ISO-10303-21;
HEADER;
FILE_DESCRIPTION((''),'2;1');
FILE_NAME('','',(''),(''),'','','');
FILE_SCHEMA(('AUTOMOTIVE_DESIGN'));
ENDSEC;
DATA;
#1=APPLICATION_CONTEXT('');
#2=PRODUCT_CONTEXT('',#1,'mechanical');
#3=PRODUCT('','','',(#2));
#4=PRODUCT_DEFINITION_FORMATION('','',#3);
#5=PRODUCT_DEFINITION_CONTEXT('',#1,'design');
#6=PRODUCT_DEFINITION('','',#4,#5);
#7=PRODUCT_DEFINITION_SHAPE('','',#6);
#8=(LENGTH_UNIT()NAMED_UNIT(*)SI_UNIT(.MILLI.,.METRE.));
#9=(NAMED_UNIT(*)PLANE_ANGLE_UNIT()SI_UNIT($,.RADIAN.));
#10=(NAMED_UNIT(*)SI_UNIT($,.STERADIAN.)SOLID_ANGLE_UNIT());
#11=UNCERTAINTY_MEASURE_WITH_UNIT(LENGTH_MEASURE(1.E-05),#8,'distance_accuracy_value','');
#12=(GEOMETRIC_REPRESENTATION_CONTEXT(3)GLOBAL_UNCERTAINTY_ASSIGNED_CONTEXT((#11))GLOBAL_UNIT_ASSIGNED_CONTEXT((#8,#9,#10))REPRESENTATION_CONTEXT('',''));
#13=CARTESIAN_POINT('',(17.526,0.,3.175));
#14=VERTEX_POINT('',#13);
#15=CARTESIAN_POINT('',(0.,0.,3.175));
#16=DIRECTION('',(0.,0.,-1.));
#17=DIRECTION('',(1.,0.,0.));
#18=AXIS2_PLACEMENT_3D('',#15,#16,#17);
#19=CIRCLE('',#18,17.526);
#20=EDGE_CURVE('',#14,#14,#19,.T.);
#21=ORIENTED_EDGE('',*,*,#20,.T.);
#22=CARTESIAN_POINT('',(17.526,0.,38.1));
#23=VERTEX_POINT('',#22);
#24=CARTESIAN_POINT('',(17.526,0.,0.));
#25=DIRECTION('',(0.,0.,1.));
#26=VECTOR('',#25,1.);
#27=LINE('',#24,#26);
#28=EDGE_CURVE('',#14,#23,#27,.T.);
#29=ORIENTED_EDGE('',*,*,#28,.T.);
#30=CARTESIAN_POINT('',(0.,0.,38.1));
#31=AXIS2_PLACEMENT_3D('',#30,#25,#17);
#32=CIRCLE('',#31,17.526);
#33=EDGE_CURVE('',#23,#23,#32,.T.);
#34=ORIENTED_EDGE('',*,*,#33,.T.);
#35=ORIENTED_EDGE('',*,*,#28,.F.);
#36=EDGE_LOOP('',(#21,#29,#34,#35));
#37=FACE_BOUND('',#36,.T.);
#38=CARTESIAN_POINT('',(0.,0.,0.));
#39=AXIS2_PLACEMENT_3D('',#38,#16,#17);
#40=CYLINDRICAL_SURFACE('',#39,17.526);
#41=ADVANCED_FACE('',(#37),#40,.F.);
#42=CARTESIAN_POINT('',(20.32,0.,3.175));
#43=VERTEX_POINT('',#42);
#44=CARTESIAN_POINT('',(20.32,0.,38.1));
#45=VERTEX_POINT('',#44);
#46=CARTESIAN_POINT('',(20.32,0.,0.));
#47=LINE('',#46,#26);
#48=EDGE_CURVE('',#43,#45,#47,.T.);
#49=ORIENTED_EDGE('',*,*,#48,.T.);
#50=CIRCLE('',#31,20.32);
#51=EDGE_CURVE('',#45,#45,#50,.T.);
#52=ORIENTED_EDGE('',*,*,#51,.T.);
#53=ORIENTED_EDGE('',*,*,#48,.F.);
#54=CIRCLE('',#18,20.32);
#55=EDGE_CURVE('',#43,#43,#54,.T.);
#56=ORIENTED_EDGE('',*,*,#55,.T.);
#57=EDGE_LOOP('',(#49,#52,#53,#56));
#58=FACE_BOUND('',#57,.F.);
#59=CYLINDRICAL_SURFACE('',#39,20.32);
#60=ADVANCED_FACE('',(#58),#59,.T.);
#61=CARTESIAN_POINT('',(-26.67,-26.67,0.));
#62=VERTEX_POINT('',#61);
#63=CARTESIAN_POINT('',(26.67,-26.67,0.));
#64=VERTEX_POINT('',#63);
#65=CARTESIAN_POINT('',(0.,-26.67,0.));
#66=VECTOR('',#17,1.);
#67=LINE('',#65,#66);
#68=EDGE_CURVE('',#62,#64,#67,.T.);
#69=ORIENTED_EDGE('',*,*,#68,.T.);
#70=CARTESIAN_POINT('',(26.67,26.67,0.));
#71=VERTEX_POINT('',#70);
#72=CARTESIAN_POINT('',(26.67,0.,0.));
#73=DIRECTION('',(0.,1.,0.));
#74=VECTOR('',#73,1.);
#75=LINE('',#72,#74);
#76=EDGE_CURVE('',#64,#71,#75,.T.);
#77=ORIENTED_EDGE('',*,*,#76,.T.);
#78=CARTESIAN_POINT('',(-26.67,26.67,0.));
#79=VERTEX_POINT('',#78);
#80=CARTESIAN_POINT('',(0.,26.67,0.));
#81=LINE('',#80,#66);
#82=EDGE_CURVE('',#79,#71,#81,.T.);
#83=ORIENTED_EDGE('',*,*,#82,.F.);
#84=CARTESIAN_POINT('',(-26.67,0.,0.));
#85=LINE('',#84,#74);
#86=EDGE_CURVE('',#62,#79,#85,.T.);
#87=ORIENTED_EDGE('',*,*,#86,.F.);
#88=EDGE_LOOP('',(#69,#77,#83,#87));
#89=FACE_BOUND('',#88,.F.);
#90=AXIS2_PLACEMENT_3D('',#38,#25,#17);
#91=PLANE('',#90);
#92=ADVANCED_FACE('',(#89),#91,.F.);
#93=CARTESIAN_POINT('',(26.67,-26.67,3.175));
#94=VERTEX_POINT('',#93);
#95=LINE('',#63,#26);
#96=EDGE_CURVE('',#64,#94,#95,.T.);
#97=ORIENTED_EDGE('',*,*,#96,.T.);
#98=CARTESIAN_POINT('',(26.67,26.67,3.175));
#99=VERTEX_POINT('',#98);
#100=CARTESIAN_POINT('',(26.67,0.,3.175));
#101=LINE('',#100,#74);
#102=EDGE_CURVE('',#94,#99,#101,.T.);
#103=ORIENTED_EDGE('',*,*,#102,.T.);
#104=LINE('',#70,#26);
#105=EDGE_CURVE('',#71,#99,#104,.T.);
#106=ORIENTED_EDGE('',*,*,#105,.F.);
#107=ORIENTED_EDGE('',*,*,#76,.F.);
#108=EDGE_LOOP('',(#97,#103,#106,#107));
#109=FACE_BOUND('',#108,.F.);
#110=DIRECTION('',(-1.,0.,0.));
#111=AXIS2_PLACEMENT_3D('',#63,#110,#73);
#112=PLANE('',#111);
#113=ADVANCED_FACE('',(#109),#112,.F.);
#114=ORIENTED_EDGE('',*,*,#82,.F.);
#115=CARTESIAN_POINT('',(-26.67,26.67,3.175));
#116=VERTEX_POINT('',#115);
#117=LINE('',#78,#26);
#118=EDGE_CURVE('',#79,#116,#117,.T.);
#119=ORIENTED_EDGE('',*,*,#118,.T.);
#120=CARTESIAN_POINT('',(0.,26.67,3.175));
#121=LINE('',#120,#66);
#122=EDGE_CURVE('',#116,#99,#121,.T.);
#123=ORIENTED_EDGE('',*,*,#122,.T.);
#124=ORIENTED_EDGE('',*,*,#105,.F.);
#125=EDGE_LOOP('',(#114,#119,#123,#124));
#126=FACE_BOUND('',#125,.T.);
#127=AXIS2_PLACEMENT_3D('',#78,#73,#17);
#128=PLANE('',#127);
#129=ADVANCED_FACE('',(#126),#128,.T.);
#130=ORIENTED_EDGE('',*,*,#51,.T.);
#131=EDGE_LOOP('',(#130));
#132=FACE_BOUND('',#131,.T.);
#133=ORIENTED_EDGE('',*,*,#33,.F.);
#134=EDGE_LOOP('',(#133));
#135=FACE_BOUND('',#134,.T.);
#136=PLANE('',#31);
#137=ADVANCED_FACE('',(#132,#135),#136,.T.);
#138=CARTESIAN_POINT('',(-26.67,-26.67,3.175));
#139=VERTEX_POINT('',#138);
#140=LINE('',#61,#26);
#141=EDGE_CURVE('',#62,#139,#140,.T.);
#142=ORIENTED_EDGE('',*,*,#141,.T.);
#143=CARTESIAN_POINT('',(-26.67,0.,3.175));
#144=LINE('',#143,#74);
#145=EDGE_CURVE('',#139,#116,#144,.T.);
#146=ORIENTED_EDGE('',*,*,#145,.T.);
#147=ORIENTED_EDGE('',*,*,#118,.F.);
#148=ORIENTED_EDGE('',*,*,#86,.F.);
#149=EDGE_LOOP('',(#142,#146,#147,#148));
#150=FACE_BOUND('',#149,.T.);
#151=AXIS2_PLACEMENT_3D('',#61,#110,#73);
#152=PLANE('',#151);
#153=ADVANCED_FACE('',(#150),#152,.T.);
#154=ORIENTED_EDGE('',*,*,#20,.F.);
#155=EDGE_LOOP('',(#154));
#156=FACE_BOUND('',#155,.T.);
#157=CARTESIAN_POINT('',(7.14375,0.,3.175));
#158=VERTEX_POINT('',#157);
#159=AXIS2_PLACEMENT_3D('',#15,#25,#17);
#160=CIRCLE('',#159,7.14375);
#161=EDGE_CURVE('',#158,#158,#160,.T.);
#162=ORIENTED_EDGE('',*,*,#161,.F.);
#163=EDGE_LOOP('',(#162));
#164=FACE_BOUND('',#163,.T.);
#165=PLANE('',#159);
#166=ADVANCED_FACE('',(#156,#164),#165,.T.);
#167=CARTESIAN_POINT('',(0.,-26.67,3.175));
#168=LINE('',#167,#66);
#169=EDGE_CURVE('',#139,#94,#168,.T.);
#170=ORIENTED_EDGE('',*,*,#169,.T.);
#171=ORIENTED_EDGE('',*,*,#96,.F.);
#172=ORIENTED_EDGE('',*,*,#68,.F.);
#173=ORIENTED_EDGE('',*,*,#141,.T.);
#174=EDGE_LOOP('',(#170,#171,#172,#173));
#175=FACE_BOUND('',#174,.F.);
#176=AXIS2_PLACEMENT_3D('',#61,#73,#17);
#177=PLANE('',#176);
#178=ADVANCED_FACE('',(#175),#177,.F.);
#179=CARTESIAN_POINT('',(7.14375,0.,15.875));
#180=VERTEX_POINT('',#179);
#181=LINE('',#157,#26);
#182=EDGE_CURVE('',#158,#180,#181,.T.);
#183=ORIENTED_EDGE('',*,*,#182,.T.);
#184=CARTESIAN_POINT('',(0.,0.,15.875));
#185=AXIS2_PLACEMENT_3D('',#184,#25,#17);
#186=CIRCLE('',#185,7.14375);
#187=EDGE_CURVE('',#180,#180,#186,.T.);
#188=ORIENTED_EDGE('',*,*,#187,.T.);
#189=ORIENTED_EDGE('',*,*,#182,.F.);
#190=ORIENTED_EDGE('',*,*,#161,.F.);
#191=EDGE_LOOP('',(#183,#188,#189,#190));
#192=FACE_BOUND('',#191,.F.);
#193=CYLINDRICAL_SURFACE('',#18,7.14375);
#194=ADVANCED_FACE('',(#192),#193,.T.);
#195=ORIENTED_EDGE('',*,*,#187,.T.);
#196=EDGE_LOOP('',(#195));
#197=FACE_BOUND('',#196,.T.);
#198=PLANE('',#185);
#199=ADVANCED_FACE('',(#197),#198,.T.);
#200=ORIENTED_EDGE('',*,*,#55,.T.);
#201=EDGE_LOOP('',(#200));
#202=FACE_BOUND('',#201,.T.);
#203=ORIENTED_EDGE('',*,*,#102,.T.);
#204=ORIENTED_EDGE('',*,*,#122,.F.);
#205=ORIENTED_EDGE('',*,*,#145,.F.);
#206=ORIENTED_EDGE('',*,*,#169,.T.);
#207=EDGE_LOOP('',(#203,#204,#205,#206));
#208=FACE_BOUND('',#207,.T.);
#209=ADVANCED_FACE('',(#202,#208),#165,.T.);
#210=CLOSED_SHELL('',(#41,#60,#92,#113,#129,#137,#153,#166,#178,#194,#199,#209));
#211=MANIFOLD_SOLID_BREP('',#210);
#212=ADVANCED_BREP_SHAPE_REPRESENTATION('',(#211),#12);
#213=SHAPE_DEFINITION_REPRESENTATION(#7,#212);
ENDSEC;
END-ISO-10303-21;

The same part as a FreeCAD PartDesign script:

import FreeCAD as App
import Part
import Sketcher

V = App.Vector
Q = App.Units.Quantity


def add_polygon(sketch, points):
    """Adds a closed chain of lines whose ends are joined by coincident constraints."""
    first, n = sketch.GeometryCount, len(points)
    for a, b in zip(points, points[1:] + points[:1]):
        sketch.addGeometry(Part.LineSegment(App.Vector(*a, 0), App.Vector(*b, 0)), False)
    for i in range(n):
        sketch.addConstraint(Sketcher.Constraint("Coincident", first + i, 2, first + (i + 1) % n, 1))

doc = App.newDocument("Part")
body = doc.addObject("PartDesign::Body", "Body")

sketch1 = doc.addObject("Sketcher::SketchObject", "Sketch")
body.addObject(sketch1)
sketch1.AttachmentSupport = (doc.XY_Plane, [""])
sketch1.MapMode = "FlatFace"
sketch1.addGeometry([
    Part.Circle(V(0, 0, 0), V(0, 0, 1), 20),
    Part.Circle(V(0, 0, 0), V(0, 0, 1), 18),
], False)
sketch1.addConstraint([
    Sketcher.Constraint("Coincident", 0, 3, -1, 1),
    Sketcher.Constraint("Coincident", 1, 3, -1, 1),
    Sketcher.Constraint("Diameter", 0, Q("1.6 in")),
    Sketcher.Constraint("Diameter", 1, Q("1.38 in")),
])
pad1 = doc.addObject("PartDesign::Pad", "Pad")
body.addObject(pad1)
pad1.Profile = sketch1
pad1.Length = Q("1.5 in")

sketch2 = doc.addObject("Sketcher::SketchObject", "Sketch001")
body.addObject(sketch2)
sketch2.AttachmentSupport = (doc.XY_Plane, [""])
sketch2.MapMode = "FlatFace"
add_polygon(sketch2, [(-27, 27), (-27, -27), (27, -27), (27, 27)])
sketch2.addConstraint([
    Sketcher.Constraint("Vertical", 0),
    Sketcher.Constraint("Horizontal", 1),
    Sketcher.Constraint("Vertical", 2),
    Sketcher.Constraint("Horizontal", 3),
    Sketcher.Constraint("Symmetric", 0, 2, 2, 2, -1, 1),
    Sketcher.Constraint("Equal", 3, 0),
    Sketcher.Constraint("DistanceX", 1, 1, 1, 2, Q("2.1 in")),
])
pad2 = doc.addObject("PartDesign::Pad", "Pad001")
body.addObject(pad2)
pad2.Profile = sketch2
pad2.Length = Q("0.125 in")

sketch3 = doc.addObject("Sketcher::SketchObject", "Sketch002")
body.addObject(sketch3)
sketch3.AttachmentSupport = (doc.XY_Plane, [""])
sketch3.MapMode = "FlatFace"
sketch3.AttachmentOffset = App.Placement(V(0, 0, 0.125 * 25.4), App.Rotation())
sketch3.addGeometry(Part.Circle(V(0, 0, 0), V(0, 0, 1), 7), False)
sketch3.addConstraint([
    Sketcher.Constraint("Coincident", 0, 3, -1, 1),
    Sketcher.Constraint("Diameter", 0, Q("0.5625 in")),
])
pad3 = doc.addObject("PartDesign::Pad", "Pad002")
body.addObject(pad3)
pad3.Profile = sketch3
pad3.Length = Q("0.5 in")

doc.recompute()
